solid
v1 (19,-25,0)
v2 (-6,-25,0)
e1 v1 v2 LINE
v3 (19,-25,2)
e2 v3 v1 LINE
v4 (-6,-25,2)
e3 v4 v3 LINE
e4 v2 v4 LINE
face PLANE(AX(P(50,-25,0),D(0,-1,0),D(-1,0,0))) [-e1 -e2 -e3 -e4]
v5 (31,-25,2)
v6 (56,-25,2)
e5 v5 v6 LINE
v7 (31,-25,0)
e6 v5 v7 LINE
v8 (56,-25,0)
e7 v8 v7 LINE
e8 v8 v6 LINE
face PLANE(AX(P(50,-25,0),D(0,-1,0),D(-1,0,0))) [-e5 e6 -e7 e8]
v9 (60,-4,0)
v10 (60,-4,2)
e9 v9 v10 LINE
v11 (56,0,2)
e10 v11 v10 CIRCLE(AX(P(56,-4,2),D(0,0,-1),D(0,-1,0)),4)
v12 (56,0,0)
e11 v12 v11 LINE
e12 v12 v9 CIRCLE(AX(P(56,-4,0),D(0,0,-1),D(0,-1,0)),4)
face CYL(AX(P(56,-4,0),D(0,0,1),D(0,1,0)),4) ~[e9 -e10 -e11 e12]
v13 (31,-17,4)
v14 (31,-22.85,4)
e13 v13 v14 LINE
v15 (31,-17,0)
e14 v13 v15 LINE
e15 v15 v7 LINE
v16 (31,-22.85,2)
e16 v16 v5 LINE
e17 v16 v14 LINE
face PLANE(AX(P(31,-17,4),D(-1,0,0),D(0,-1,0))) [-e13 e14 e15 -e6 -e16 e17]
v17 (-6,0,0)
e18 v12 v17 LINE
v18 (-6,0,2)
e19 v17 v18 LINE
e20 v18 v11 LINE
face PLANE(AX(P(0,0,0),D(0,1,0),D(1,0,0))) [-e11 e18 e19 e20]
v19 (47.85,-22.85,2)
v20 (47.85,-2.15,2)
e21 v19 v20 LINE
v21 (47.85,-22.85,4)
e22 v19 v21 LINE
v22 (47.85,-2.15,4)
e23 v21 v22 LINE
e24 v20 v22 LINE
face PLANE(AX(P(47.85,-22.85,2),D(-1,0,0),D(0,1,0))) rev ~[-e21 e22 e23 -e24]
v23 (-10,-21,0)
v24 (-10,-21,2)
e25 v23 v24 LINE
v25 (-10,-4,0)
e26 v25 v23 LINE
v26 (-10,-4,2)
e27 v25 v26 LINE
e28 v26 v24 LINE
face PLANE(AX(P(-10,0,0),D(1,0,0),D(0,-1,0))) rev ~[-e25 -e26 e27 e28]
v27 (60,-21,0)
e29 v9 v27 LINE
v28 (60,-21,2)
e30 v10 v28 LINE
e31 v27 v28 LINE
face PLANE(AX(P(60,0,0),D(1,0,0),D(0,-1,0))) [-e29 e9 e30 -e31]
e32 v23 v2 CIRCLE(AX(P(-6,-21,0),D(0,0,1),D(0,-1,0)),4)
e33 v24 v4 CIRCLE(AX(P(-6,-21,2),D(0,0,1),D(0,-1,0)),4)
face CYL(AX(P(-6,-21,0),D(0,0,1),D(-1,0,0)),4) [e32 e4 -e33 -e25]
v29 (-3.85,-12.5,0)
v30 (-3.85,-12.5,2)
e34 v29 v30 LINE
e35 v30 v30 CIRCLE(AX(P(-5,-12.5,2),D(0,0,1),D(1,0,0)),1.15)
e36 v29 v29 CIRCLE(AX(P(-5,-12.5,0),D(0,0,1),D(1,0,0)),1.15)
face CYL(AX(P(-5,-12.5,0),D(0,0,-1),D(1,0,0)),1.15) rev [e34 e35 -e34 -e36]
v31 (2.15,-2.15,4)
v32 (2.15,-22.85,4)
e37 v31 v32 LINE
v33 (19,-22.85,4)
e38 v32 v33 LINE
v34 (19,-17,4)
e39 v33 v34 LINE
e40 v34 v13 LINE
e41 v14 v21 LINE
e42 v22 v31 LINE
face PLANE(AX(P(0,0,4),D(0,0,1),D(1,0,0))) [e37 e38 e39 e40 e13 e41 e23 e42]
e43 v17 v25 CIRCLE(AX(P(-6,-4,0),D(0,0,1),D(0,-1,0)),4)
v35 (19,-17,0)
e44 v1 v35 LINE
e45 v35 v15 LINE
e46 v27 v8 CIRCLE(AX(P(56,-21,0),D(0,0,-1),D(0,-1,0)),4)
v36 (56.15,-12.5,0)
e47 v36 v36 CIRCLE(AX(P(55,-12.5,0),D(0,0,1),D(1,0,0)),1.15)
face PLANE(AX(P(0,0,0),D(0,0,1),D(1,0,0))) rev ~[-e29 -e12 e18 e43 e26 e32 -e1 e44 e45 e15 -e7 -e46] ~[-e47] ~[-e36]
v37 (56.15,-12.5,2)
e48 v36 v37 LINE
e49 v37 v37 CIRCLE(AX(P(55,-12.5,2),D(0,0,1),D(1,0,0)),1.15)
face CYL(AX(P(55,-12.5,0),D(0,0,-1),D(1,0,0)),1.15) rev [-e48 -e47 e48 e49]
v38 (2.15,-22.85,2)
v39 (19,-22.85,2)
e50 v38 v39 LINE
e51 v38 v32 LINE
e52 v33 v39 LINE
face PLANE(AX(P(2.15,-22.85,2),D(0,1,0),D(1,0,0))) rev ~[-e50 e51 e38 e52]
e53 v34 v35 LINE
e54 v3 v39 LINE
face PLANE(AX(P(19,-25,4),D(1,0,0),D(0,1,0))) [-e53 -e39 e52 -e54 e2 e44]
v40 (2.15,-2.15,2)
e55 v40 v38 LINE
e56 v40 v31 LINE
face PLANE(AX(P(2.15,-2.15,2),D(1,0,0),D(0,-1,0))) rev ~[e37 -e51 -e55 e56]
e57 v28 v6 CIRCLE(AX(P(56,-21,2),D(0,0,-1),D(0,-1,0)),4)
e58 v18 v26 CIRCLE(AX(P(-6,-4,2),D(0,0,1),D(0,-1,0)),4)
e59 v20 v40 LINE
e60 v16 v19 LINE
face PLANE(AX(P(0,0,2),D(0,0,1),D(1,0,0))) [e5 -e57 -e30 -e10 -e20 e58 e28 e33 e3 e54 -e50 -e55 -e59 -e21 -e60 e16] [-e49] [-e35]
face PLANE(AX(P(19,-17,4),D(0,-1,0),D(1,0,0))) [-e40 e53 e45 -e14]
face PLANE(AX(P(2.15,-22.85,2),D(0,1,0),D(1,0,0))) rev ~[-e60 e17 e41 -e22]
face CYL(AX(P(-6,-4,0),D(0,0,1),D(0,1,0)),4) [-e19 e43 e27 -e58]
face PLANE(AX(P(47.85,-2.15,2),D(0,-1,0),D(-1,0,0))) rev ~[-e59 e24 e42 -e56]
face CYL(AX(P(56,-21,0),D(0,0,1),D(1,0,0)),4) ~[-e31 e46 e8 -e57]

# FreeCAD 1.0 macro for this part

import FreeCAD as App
import Part
import Sketcher
from FreeCAD import Vector
Q = App.Units.Quantity


def edges_at(feature, points):
    """Names of the edges that pass closest to the given points."""
    edges = feature.Shape.Edges
    near = lambda p: min(range(len(edges)), key=lambda i: edges[i].distToShape(Part.Vertex(*p))[0])
    return sorted({f"Edge{near(p) + 1}" for p in points})


def add_polygon(sketch, points):
    """Adds a closed chain of lines whose ends are joined by coincident constraints."""
    first, n = sketch.GeometryCount, len(points)
    for a, b in zip(points, points[1:] + points[:1]):
        sketch.addGeometry(Part.LineSegment(App.Vector(*a, 0), App.Vector(*b, 0)), False)
    for i in range(n):
        sketch.addConstraint(Sketcher.Constraint("Coincident", first + i, 2, first + (i + 1) % n, 1))

doc = App.newDocument("Part")
params = doc.addObject("Spreadsheet::Sheet", "Params")
for row, (alias, value) in enumerate([
    ("sketch1_diameter", "2.3 mm"),
    ("sketch1_height", "25 mm"),
    ("sketch1_width", "70 mm"),
    ("pad1_length", "2 mm"),
    ("fillet_radius", "4 mm"),
    ("sketch2_width", "45.7 mm"),
    ("sketch2_height", "20.7 mm"),
    ("pad2_length", "2 mm"),
    ("sketch3_width", "12 mm"),
    ("sketch3_height", "8 mm"),
], start=1):
    params.set(f"A{row}", alias)
    params.set(f"B{row}", "=" + value)
    params.setAlias(f"B{row}", alias)

body = doc.addObject("PartDesign::Body", "Body")

# Sketch on XY plane
sketch1 = body.newObject("Sketcher::SketchObject", "Sketch")
sketch1.AttachmentSupport = (doc.getObject("XY_Plane"), [""])
sketch1.MapMode = "FlatFace"
add_polygon(sketch1, [(-10, 0), (-10, -25), (60, -25), (60, 0)])  # lines 0-3
sketch1.addGeometry(Part.Circle(Vector(55, -12.5, 0), Vector(0, 0, 1), 1.15), False)  # 4
sketch1.addGeometry(Part.Circle(Vector(-5, -12.5, 0), Vector(0, 0, 1), 1.15), False)  # 5
sketch1.addConstraint([
    Sketcher.Constraint("Vertical", 0),
    Sketcher.Constraint("Horizontal", 1),
    Sketcher.Constraint("Vertical", 2),
    Sketcher.Constraint("Horizontal", 3),
    Sketcher.Constraint("Equal", 4, 5),
    Sketcher.Constraint("PointOnObject", 2, 2, -1),
    Sketcher.Constraint("Horizontal", 4, 3, 5, 3),
    Sketcher.Constraint("Diameter", 4, Q("2.3 mm")),
    Sketcher.Constraint("DistanceY", 0, 2, 0, 1, Q("25 mm")),
    Sketcher.Constraint("DistanceX", 5, 3, -1, 1, Q("5 mm")),
    Sketcher.Constraint("DistanceX", 0, 2, -1, 1, Q("10 mm")),
    Sketcher.Constraint("DistanceX", 4, 3, 1, 2, Q("5 mm")),
    Sketcher.Constraint("DistanceY", 4, 3, -1, 1, Q("12.5 mm")),
    Sketcher.Constraint("DistanceX", 1, 1, 1, 2, Q("70 mm")),
])
sketch1.setExpression("Constraints[11]", "Params.sketch1_diameter")
sketch1.setExpression("Constraints[12]", "Params.sketch1_height")
sketch1.setExpression("Constraints[17]", "Params.sketch1_width")
pad1 = body.newObject("PartDesign::Pad", "Pad")
pad1.Profile = sketch1
pad1.setExpression("Length", "Params.pad1_length")
doc.recompute()

fillet = body.newObject("PartDesign::Fillet", "Fillet")
fillet.Base = (pad1, edges_at(pad1, [
    (-10, 0, 1),
    (60, 0, 1),
    (-10, -25, 1),
    (60, -25, 1),
]))
fillet.setExpression("Radius", "Params.fillet_radius")

# Sketch on XY plane
sketch2 = body.newObject("Sketcher::SketchObject", "Sketch001")
sketch2.AttachmentSupport = (doc.getObject("XY_Plane"), [""])
sketch2.MapMode = "FlatFace"
sketch2.AttachmentOffset = App.Placement(Vector(0, 0, 2), App.Rotation())
add_polygon(sketch2, [(2.15, -2.15), (2.15, -22.85), (47.85, -22.85), (47.85, -2.15)])  # lines 0-3
sketch2.addConstraint([
    Sketcher.Constraint("Vertical", 0),
    Sketcher.Constraint("Horizontal", 1),
    Sketcher.Constraint("Vertical", 2),
    Sketcher.Constraint("Horizontal", 3),
    Sketcher.Constraint("DistanceX", 1, 1, 1, 2, Q("45.7 mm")),
    Sketcher.Constraint("DistanceY", 0, 2, 0, 1, Q("20.7 mm")),
    Sketcher.Constraint("DistanceX", -1, 1, 0, 2, Q("2.15 mm")),
    Sketcher.Constraint("DistanceY", 2, 2, -1, 1, Q("2.15 mm")),
])
sketch2.setExpression("Constraints[8]", "Params.sketch2_width")
sketch2.setExpression("Constraints[9]", "Params.sketch2_height")
pad2 = body.newObject("PartDesign::Pad", "Pad001")
pad2.Profile = sketch2
pad2.setExpression("Length", "Params.pad2_length")

# Sketch on XY plane
sketch3 = body.newObject("Sketcher::SketchObject", "Sketch002")
sketch3.AttachmentSupport = (doc.getObject("XY_Plane"), [""])
sketch3.MapMode = "FlatFace"
sketch3.AttachmentOffset = App.Placement(Vector(0, 0, 4), App.Rotation())
add_polygon(sketch3, [(19, -25), (31, -25), (31, -17), (19, -17)])  # lines 0-3
sketch3.addConstraint([
    Sketcher.Constraint("Horizontal", 0),
    Sketcher.Constraint("Vertical", 1),
    Sketcher.Constraint("Horizontal", 2),
    Sketcher.Constraint("Vertical", 3),
    Sketcher.Constraint("DistanceX", 0, 1, 0, 2, Q("12 mm")),
    Sketcher.Constraint("DistanceY", 1, 1, 1, 2, Q("8 mm")),
    Sketcher.Constraint("DistanceX", -1, 1, 0, 2, Q("31 mm")),
    Sketcher.Constraint("DistanceY", 0, 2, -1, 1, Q("25 mm")),
])
sketch3.setExpression("Constraints[8]", "Params.sketch3_width")
sketch3.setExpression("Constraints[9]", "Params.sketch3_height")
pocket1 = body.newObject("PartDesign::Pocket", "Pocket")
pocket1.Profile = sketch3
pocket1.Type = "ThroughAll"

doc.recompute()
